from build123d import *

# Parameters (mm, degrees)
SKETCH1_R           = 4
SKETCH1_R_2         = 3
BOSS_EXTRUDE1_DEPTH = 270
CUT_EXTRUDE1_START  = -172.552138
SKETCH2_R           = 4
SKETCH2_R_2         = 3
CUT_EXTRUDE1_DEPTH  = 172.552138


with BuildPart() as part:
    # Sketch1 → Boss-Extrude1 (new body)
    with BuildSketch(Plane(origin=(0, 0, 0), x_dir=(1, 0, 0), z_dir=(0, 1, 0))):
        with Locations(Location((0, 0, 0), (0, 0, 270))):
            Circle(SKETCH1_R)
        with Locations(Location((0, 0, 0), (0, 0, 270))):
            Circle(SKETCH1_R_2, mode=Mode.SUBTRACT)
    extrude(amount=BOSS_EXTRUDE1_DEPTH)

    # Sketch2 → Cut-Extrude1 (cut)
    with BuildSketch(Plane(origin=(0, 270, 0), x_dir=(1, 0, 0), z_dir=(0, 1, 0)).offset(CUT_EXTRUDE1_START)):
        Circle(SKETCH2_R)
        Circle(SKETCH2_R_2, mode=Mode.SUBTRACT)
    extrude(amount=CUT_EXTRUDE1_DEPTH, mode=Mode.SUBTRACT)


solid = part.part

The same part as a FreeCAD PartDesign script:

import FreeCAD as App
import Part
import Sketcher
from FreeCAD import Vector
Q = App.Units.Quantity

doc = App.newDocument("Part")
body = doc.addObject("PartDesign::Body", "Body")

sketch1 = body.newObject("Sketcher::SketchObject", "Sketch")
sketch1.AttachmentSupport = (doc.getObject("XZ_Plane"), [""])
sketch1.MapMode = "FlatFace"
sketch1.addGeometry(Part.Circle(Vector(0, 0, 0), Vector(0, 0, 1), 4), False)
sketch1.addGeometry(Part.Circle(Vector(0, 0, 0), Vector(0, 0, 1), 3), False)
sketch1.addConstraint(Sketcher.Constraint("Coincident", 0, 3, -1, 1))
sketch1.addConstraint(Sketcher.Constraint("Coincident", 1, 3, -1, 1))
sketch1.addConstraint(Sketcher.Constraint("Diameter", 0, Q("8 mm")))
sketch1.addConstraint(Sketcher.Constraint("Diameter", 1, Q("6 mm")))
pad1 = body.newObject("PartDesign::Pad", "Pad")
pad1.Profile = sketch1
pad1.Length = 270
pad1.Reversed = True

sketch2 = body.newObject("Sketcher::SketchObject", "Sketch001")
sketch2.AttachmentSupport = (doc.getObject("XZ_Plane"), [""])
sketch2.MapMode = "FlatFace"
sketch2.AttachmentOffset = App.Placement(Vector(0, 0, -97.447862), App.Rotation())
sketch2.addGeometry(Part.Circle(Vector(0, 0, 0), Vector(0, 0, 1), 4), False)
sketch2.addGeometry(Part.Circle(Vector(0, 0, 0), Vector(0, 0, 1), 3), False)
sketch2.addConstraint(Sketcher.Constraint("Coincident", 0, 3, -1, 1))
sketch2.addConstraint(Sketcher.Constraint("Coincident", 1, 3, -1, 1))
sketch2.addConstraint(Sketcher.Constraint("Diameter", 0, Q("8 mm")))
sketch2.addConstraint(Sketcher.Constraint("Diameter", 1, Q("6 mm")))
pocket1 = body.newObject("PartDesign::Pocket", "Pocket")
pocket1.Profile = sketch2
pocket1.Length = 172.552138

doc.recompute()
